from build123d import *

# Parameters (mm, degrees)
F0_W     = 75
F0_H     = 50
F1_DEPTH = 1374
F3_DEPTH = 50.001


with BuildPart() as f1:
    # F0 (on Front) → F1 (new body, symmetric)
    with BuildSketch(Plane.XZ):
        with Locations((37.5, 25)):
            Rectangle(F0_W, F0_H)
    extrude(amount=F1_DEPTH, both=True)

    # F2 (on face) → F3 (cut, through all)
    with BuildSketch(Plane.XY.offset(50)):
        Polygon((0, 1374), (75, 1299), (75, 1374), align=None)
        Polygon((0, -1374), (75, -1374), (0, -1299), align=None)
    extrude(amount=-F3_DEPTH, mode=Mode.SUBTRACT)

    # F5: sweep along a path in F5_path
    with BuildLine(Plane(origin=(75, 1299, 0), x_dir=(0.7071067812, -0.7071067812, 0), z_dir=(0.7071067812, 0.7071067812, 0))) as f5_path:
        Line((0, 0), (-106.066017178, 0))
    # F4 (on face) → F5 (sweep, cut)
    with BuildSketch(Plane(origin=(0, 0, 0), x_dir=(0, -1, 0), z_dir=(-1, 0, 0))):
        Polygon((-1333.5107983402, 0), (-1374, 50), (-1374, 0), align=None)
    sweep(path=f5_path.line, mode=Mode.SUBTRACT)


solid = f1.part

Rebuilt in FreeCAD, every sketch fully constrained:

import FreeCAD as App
import Part
import Sketcher
from FreeCAD import Vector
Q = App.Units.Quantity

doc = App.newDocument("Part")
body = doc.addObject("PartDesign::Body", "Body")

# Sketch on XZ plane
sketch1 = body.newObject("Sketcher::SketchObject", "Sketch")
sketch1.AttachmentSupport = (doc.getObject("XZ_Plane"), [""])
sketch1.MapMode = "FlatFace"
sketch1.addGeometry(Part.LineSegment(Vector(0, 50, 0), Vector(0, 0, 0)), False)
sketch1.addGeometry(Part.LineSegment(Vector(0, 0, 0), Vector(75, 0, 0)), False)
sketch1.addGeometry(Part.LineSegment(Vector(75, 0, 0), Vector(75, 50, 0)), False)
sketch1.addGeometry(Part.LineSegment(Vector(75, 50, 0), Vector(0, 50, 0)), False)
sketch1.addConstraint(Sketcher.Constraint("Coincident", 0, 2, 1, 1))
sketch1.addConstraint(Sketcher.Constraint("Coincident", 1, 2, 2, 1))
sketch1.addConstraint(Sketcher.Constraint("Coincident", 2, 2, 3, 1))
sketch1.addConstraint(Sketcher.Constraint("Coincident", 3, 2, 0, 1))
sketch1.addConstraint(Sketcher.Constraint("Vertical", 0))
sketch1.addConstraint(Sketcher.Constraint("Horizontal", 1))
sketch1.addConstraint(Sketcher.Constraint("Vertical", 2))
sketch1.addConstraint(Sketcher.Constraint("Horizontal", 3))
sketch1.addConstraint(Sketcher.Constraint("Coincident", 0, 2, -1, 1))
sketch1.addConstraint(Sketcher.Constraint("DistanceX", 1, 1, 1, 2, 75.0))
sketch1.addConstraint(Sketcher.Constraint("DistanceY", 0, 2, 0, 1, 50.0))
pad1 = body.newObject("PartDesign::Pad", "Pad")
pad1.Profile = sketch1
pad1.Length = 2748
pad1.Midplane = True

# Sketch on XY plane
sketch2 = body.newObject("Sketcher::SketchObject", "Sketch001")
sketch2.AttachmentSupport = (doc.getObject("XY_Plane"), [""])
sketch2.MapMode = "FlatFace"
sketch2.AttachmentOffset = App.Placement(Vector(0, 0, 50), App.Rotation())
sketch2.addGeometry(Part.LineSegment(Vector(0, 1374, 0), Vector(75, 1299, 0)), False)
sketch2.addGeometry(Part.LineSegment(Vector(75, 1299, 0), Vector(75, 1374, 0)), False)
sketch2.addGeometry(Part.LineSegment(Vector(75, 1374, 0), Vector(0, 1374, 0)), False)
sketch2.addGeometry(Part.LineSegment(Vector(0, -1374, 0), Vector(75, -1374, 0)), False)
sketch2.addGeometry(Part.LineSegment(Vector(75, -1374, 0), Vector(0, -1299, 0)), False)
sketch2.addGeometry(Part.LineSegment(Vector(0, -1299, 0), Vector(0, -1374, 0)), False)
sketch2.addConstraint(Sketcher.Constraint("Coincident", 0, 2, 1, 1))
sketch2.addConstraint(Sketcher.Constraint("Coincident", 1, 2, 2, 1))
sketch2.addConstraint(Sketcher.Constraint("Coincident", 2, 2, 0, 1))
sketch2.addConstraint(Sketcher.Constraint("Coincident", 3, 2, 4, 1))
sketch2.addConstraint(Sketcher.Constraint("Coincident", 4, 2, 5, 1))
sketch2.addConstraint(Sketcher.Constraint("Coincident", 5, 2, 3, 1))
sketch2.addConstraint(Sketcher.Constraint("Vertical", 1))
sketch2.addConstraint(Sketcher.Constraint("Horizontal", 2))
sketch2.addConstraint(Sketcher.Constraint("Horizontal", 3))
sketch2.addConstraint(Sketcher.Constraint("Vertical", 5))
sketch2.addConstraint(Sketcher.Constraint("Symmetric", 2, 2, 5, 2, -1, 1))
sketch2.addConstraint(Sketcher.Constraint("PointOnObject", 2, 2, -2))
sketch2.addConstraint(Sketcher.Constraint("Parallel", 0, 4))
sketch2.addConstraint(Sketcher.Constraint("Vertical", 1, 2, 3, 2))
sketch2.addConstraint(Sketcher.Constraint("Equal", 3, 1))
sketch2.addConstraint(Sketcher.Constraint("DistanceX", 2, 2, 2, 1, 75.0))
sketch2.addConstraint(Sketcher.Constraint("DistanceY", -1, 1, 0, 2, 1299.0))
pocket1 = body.newObject("PartDesign::Pocket", "Pocket")
pocket1.Profile = sketch2
pocket1.Type = "ThroughAll"

# Sketch on YZ plane
sketch3 = body.newObject("Sketcher::SketchObject", "Sketch002")
sketch3.AttachmentSupport = (doc.getObject("YZ_Plane"), [""])
sketch3.MapMode = "FlatFace"
sketch3.addGeometry(Part.LineSegment(Vector(1333.510798, 0, 0), Vector(1374, 50, 0)), False)
sketch3.addGeometry(Part.LineSegment(Vector(1374, 50, 0), Vector(1374, 0, 0)), False)
sketch3.addGeometry(Part.LineSegment(Vector(1374, 0, 0), Vector(1333.510798, 0, 0)), False)
sketch3.addConstraint(Sketcher.Constraint("Coincident", 0, 2, 1, 1))
sketch3.addConstraint(Sketcher.Constraint("Coincident", 1, 2, 2, 1))
sketch3.addConstraint(Sketcher.Constraint("Coincident", 2, 2, 0, 1))
sketch3.addConstraint(Sketcher.Constraint("Vertical", 1))
sketch3.addConstraint(Sketcher.Constraint("Horizontal", 2))
sketch3.addConstraint(Sketcher.Constraint("PointOnObject", 1, 2, -1))
sketch3.addConstraint(Sketcher.Constraint("DistanceY", 1, 2, 1, 1, 50.0))
sketch3.addConstraint(Sketcher.Constraint("Angle", 0, Q("51 deg")))
sketch3.addConstraint(Sketcher.Constraint("DistanceX", -1, 1, 0, 2, 1374.0))

# Sketch on an angled plane
sketch4 = body.newObject("Sketcher::SketchObject", "Sketch003")
sketch4.Placement = App.Placement(Vector(687, 687, 0), App.Rotation(Vector(-0.707106781, 0.707106781, 0), Vector(0, 0, 0.999999999), Vector(0.707106781, 0.707106781, 0), "ZXY"))
sketch4.addGeometry(Part.LineSegment(Vector(865, 0, 0), Vector(972, 0, 0)), False)
sketch4.addConstraint(Sketcher.Constraint("Horizontal", 0))
sketch4.addConstraint(Sketcher.Constraint("PointOnObject", 0, 1, -1))
sketch4.addConstraint(Sketcher.Constraint("DistanceX", -1, 1, 0, 1, 865.4987))
sketch4.addConstraint(Sketcher.Constraint("DistanceX", 0, 1, 0, 2, 106.066017))
doc.recompute()

subtractivepipe = body.newObject("PartDesign::SubtractivePipe", "SubtractivePipe")
subtractivepipe.Profile = sketch3
subtractivepipe.Spine = (sketch4, ["Edge1"])

doc.recompute()
